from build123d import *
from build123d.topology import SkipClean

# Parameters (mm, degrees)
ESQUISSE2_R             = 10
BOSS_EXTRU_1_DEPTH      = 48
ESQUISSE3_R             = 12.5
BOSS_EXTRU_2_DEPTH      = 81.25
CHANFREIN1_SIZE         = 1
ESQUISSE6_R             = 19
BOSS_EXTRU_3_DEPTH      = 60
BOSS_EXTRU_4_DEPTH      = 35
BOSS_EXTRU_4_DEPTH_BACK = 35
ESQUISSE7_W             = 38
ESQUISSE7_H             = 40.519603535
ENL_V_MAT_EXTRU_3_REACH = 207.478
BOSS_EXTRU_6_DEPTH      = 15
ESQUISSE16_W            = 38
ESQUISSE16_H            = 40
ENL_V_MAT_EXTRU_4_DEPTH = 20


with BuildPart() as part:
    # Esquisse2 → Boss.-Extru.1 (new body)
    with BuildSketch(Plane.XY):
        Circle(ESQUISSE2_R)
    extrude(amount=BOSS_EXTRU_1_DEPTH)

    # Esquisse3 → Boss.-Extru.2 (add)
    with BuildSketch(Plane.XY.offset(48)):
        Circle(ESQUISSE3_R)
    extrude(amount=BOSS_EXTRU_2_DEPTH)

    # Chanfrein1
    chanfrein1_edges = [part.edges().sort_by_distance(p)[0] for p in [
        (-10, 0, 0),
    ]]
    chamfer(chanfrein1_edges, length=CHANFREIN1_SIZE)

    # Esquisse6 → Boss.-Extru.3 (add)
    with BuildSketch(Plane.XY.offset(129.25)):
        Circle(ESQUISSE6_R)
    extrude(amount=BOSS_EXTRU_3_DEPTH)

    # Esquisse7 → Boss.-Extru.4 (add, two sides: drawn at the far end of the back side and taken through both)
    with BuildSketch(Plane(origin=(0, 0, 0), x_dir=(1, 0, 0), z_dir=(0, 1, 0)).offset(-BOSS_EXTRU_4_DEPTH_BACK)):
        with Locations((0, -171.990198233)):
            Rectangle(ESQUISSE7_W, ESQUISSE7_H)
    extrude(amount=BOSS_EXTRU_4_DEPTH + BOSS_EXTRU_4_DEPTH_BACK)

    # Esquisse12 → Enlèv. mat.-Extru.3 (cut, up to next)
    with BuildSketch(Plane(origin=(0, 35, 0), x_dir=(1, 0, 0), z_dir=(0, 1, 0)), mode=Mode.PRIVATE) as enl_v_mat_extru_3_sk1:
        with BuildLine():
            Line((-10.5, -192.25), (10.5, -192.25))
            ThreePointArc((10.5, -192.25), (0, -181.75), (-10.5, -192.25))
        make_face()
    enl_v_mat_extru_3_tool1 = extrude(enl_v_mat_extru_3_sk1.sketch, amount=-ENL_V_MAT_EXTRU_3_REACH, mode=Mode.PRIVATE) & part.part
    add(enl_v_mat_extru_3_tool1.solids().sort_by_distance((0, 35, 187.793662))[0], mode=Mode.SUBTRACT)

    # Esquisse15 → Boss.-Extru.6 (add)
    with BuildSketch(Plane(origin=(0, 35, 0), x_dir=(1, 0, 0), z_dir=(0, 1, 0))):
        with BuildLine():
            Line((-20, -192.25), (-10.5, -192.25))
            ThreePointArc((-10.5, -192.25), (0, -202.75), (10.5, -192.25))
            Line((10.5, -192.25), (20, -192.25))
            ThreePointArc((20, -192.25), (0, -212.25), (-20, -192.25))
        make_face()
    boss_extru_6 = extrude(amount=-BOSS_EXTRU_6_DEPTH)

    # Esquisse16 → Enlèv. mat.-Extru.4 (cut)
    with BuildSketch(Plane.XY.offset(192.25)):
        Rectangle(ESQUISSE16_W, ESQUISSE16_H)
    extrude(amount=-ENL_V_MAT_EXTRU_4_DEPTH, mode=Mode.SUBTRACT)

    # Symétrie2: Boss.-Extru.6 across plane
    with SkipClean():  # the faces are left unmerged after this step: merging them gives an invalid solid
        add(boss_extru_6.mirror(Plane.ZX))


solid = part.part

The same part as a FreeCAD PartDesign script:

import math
import FreeCAD as App
import Part
import Sketcher

V = App.Vector
Q = App.Units.Quantity


def edges_at(feature, points):
    """Names of the edges that pass closest to the given points."""
    edges = feature.Shape.Edges
    near = lambda p: min(range(len(edges)), key=lambda i: edges[i].distToShape(Part.Vertex(*p))[0])
    return sorted({f"Edge{near(p) + 1}" for p in points})


def add_polygon(sketch, points):
    """Adds a closed chain of lines whose ends are joined by coincident constraints."""
    first, n = sketch.GeometryCount, len(points)
    for a, b in zip(points, points[1:] + points[:1]):
        sketch.addGeometry(Part.LineSegment(App.Vector(*a, 0), App.Vector(*b, 0)), False)
    for i in range(n):
        sketch.addConstraint(Sketcher.Constraint("Coincident", first + i, 2, first + (i + 1) % n, 1))

doc = App.newDocument("Part")
body = doc.addObject("PartDesign::Body", "Body")

sketch1 = body.newObject("Sketcher::SketchObject", "Sketch")
sketch1.AttachmentSupport = (doc.getObject("XY_Plane"), [""])
sketch1.MapMode = "FlatFace"
sketch1.addGeometry(Part.Circle(V(0, 0, 0), V(0, 0, 1), 10), False)
sketch1.addConstraint(Sketcher.Constraint("Coincident", 0, 3, -1, 1))
sketch1.addConstraint(Sketcher.Constraint("Diameter", 0, Q("20 mm")))
pad1 = body.newObject("PartDesign::Pad", "Pad")
pad1.Profile = sketch1
pad1.Length = 48

sketch2 = body.newObject("Sketcher::SketchObject", "Sketch001")
sketch2.AttachmentSupport = (doc.getObject("XY_Plane"), [""])
sketch2.MapMode = "FlatFace"
sketch2.AttachmentOffset = App.Placement(V(0, 0, 48), App.Rotation())
sketch2.addGeometry(Part.Circle(V(0, 0, 0), V(0, 0, 1), 12), False)
sketch2.addConstraint(Sketcher.Constraint("Coincident", 0, 3, -1, 1))
sketch2.addConstraint(Sketcher.Constraint("Diameter", 0, Q("25 mm")))
pad2 = body.newObject("PartDesign::Pad", "Pad001")
pad2.Profile = sketch2
pad2.Length = 81.25
doc.recompute()

chamfer = body.newObject("PartDesign::Chamfer", "Chamfer")
chamfer.Base = (pad2, edges_at(pad2, [(-10, 0, 0)]))
chamfer.Size = 1

sketch3 = body.newObject("Sketcher::SketchObject", "Sketch002")
sketch3.AttachmentSupport = (doc.getObject("XY_Plane"), [""])
sketch3.MapMode = "FlatFace"
sketch3.AttachmentOffset = App.Placement(V(0, 0, 129.25), App.Rotation())
sketch3.addGeometry(Part.Circle(V(0, 0, 0), V(0, 0, 1), 19), False)
sketch3.addConstraint(Sketcher.Constraint("Coincident", 0, 3, -1, 1))
sketch3.addConstraint(Sketcher.Constraint("Diameter", 0, Q("38 mm")))
pad3 = body.newObject("PartDesign::Pad", "Pad002")
pad3.Profile = sketch3
pad3.Length = 60

sketch4 = body.newObject("Sketcher::SketchObject", "Sketch003")
sketch4.AttachmentSupport = (doc.getObject("XZ_Plane"), [""])
sketch4.MapMode = "FlatFace"
add_polygon(sketch4, [(-19, 152), (-19, 192), (19, 192), (19, 152)])
sketch4.addConstraint(Sketcher.Constraint("Vertical", 0))
sketch4.addConstraint(Sketcher.Constraint("Horizontal", 1))
sketch4.addConstraint(Sketcher.Constraint("Vertical", 2))
sketch4.addConstraint(Sketcher.Constraint("Horizontal", 3))
sketch4.addConstraint(Sketcher.Constraint("DistanceX", 1, 1, 1, 2, Q("38 mm")))
sketch4.addConstraint(Sketcher.Constraint("DistanceX", 0, 2, -1, 1, Q("19 mm")))
sketch4.addConstraint(Sketcher.Constraint("DistanceY", -1, 1, 0, 2, Q("192.25 mm")))
sketch4.addConstraint(Sketcher.Constraint("DistanceY", 0, 1, 0, 2, Q("40.519604 mm")))
pad4 = body.newObject("PartDesign::Pad", "Pad003")
pad4.Profile = sketch4
pad4.Type = "TwoLengths"
pad4.Length = 35
pad4.Length2 = 35
pad4.Reversed = True

sketch5 = body.newObject("Sketcher::SketchObject", "Sketch004")
sketch5.AttachmentSupport = (doc.getObject("XZ_Plane"), [""])
sketch5.MapMode = "FlatFace"
sketch5.AttachmentOffset = App.Placement(V(0, 0, -35), App.Rotation())
sketch5.addGeometry(Part.LineSegment(V(-10, 192, 0), V(10, 192, 0)), False)
sketch5.addGeometry(Part.ArcOfCircle(Part.Circle(V(0, 192, 0), V(0, 0, 1), 10), math.radians(180), math.radians(360)), False)
sketch5.addConstraint(Sketcher.Constraint("Coincident", 0, 1, 1, 1))
sketch5.addConstraint(Sketcher.Constraint("Coincident", 1, 2, 0, 2))
sketch5.addConstraint(Sketcher.Constraint("Horizontal", 0))
sketch5.addConstraint(Sketcher.Constraint("PointOnObject", 1, 3, -2))
sketch5.addConstraint(Sketcher.Constraint("Horizontal", 1, 3, 0, 1))
sketch5.addConstraint(Sketcher.Constraint("Radius", 1, Q("10.5 mm")))
sketch5.addConstraint(Sketcher.Constraint("DistanceY", -1, 1, 1, 3, Q("192.25 mm")))
pocket1 = body.newObject("PartDesign::Pocket", "Pocket")
pocket1.Profile = sketch5
pocket1.Type = "UpToFirst"
pocket1.Reversed = True

sketch6 = body.newObject("Sketcher::SketchObject", "Sketch005")
sketch6.AttachmentSupport = (doc.getObject("XZ_Plane"), [""])
sketch6.MapMode = "FlatFace"
sketch6.AttachmentOffset = App.Placement(V(0, 0, -35), App.Rotation())
sketch6.addGeometry(Part.LineSegment(V(-10, 192, 0), V(-20, 192, 0)), False)
sketch6.addGeometry(Part.ArcOfCircle(Part.Circle(V(0, 192, 0), V(0, 0, 1), 20), math.radians(0), math.radians(180)), False)
sketch6.addGeometry(Part.LineSegment(V(20, 192, 0), V(10, 192, 0)), False)
sketch6.addGeometry(Part.ArcOfCircle(Part.Circle(V(0, 192, 0), V(0, 0, 1), 10), math.radians(0), math.radians(180)), False)
sketch6.addConstraint(Sketcher.Constraint("Coincident", 0, 2, 1, 2))
sketch6.addConstraint(Sketcher.Constraint("Coincident", 1, 1, 2, 1))
sketch6.addConstraint(Sketcher.Constraint("Coincident", 2, 2, 3, 1))
sketch6.addConstraint(Sketcher.Constraint("Coincident", 3, 2, 0, 1))
sketch6.addConstraint(Sketcher.Constraint("Horizontal", 0))
sketch6.addConstraint(Sketcher.Constraint("Horizontal", 2))
sketch6.addConstraint(Sketcher.Constraint("Coincident", 3, 3, 1, 3))
sketch6.addConstraint(Sketcher.Constraint("Symmetric", 0, 2, 1, 1, -2))
sketch6.addConstraint(Sketcher.Constraint("Horizontal", 3, 3, 0, 2))
sketch6.addConstraint(Sketcher.Constraint("Radius", 1, Q("20 mm")))
sketch6.addConstraint(Sketcher.Constraint("Radius", 3, Q("10.5 mm")))
sketch6.addConstraint(Sketcher.Constraint("DistanceY", -1, 1, 1, 3, Q("192.25 mm")))
pad5 = body.newObject("PartDesign::Pad", "Pad004")
pad5.Profile = sketch6
pad5.Length = 15

sketch7 = body.newObject("Sketcher::SketchObject", "Sketch006")
sketch7.AttachmentSupport = (doc.getObject("XY_Plane"), [""])
sketch7.MapMode = "FlatFace"
sketch7.AttachmentOffset = App.Placement(V(0, 0, 192.25), App.Rotation())
add_polygon(sketch7, [(-19, 20), (-19, -20), (19, -20), (19, 20)])
sketch7.addConstraint(Sketcher.Constraint("Vertical", 0))
sketch7.addConstraint(Sketcher.Constraint("Horizontal", 1))
sketch7.addConstraint(Sketcher.Constraint("Vertical", 2))
sketch7.addConstraint(Sketcher.Constraint("Horizontal", 3))
sketch7.addConstraint(Sketcher.Constraint("Symmetric", 0, 2, 2, 2, -1, 1))
sketch7.addConstraint(Sketcher.Constraint("DistanceX", 1, 1, 1, 2, Q("38 mm")))
sketch7.addConstraint(Sketcher.Constraint("DistanceY", 0, 2, 0, 1, Q("40 mm")))
pocket2 = body.newObject("PartDesign::Pocket", "Pocket001")
pocket2.Profile = sketch7
pocket2.Length = 20
doc.recompute()

mirrored = body.newObject("PartDesign::Mirrored", "Mirrored")
mirrored.Originals = [pad5]
mirrored.MirrorPlane = (doc.getObject("XZ_Plane"), [""])
body.Tip = mirrored

doc.recompute()
